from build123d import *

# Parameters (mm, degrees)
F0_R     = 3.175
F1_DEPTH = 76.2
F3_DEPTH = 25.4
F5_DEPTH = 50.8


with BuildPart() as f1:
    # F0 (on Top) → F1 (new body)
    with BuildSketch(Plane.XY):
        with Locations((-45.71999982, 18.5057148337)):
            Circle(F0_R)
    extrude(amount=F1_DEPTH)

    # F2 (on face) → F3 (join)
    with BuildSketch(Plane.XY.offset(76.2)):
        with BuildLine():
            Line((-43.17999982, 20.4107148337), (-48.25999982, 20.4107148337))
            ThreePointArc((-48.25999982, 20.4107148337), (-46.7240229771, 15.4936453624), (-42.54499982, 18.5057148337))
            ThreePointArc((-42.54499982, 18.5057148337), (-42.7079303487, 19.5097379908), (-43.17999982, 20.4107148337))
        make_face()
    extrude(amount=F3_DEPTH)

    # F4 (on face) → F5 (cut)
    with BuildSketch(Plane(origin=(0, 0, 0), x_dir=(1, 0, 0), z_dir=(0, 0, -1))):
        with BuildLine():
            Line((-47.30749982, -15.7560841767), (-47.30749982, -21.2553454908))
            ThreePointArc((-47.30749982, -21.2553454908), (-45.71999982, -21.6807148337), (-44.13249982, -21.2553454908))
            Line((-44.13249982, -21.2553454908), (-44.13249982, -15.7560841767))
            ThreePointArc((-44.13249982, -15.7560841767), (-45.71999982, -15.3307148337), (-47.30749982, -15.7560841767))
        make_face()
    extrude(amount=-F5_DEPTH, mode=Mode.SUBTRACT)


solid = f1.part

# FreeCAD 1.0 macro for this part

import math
import FreeCAD as App
import Part
import Sketcher

V = App.Vector
Q = App.Units.Quantity

doc = App.newDocument("Part")
body = doc.addObject("PartDesign::Body", "Body")

sketch1 = body.newObject("Sketcher::SketchObject", "Sketch")
sketch1.AttachmentSupport = (doc.getObject("XY_Plane"), [""])
sketch1.MapMode = "FlatFace"
sketch1.addGeometry(Part.Circle(V(-45.7, 18.5, 0), V(0, 0, 1), 3.2), False)
sketch1.addConstraint([
    Sketcher.Constraint("Diameter", 0, Q("0.25 in")),
    Sketcher.Constraint("DistanceX", 0, 3, -1, 1, Q("1.8 in")),
    Sketcher.Constraint("DistanceY", -1, 1, 0, 3, Q("18.505715 mm")),
])
pad1 = body.newObject("PartDesign::Pad", "Pad")
pad1.Profile = sketch1
pad1.Length = Q("3 in")

sketch2 = body.newObject("Sketcher::SketchObject", "Sketch001")
sketch2.AttachmentSupport = (doc.getObject("XY_Plane"), [""])
sketch2.MapMode = "FlatFace"
sketch2.AttachmentOffset = App.Placement(V(0, 0, 3 * 25.4), App.Rotation())
sketch2.addGeometry([
    Part.LineSegment(V(-43.2, 20.4, 0), V(-48.3, 20.4, 0)),
    Part.ArcOfCircle(Part.Circle(V(-45.7, 18.5, 0), V(0, 0, 1), 3.2), math.radians(143), math.radians(360)),
    Part.ArcOfCircle(Part.Circle(V(-45.7, 18.5, 0), V(0, 0, 1), 3.2), math.radians(0), math.radians(37)),
], False)
sketch2.addConstraint([
    Sketcher.Constraint("Coincident", 0, 2, 1, 1),
    Sketcher.Constraint("Tangent", 1, 2, 2, 1),
    Sketcher.Constraint("Coincident", 2, 2, 0, 1),
    Sketcher.Constraint("Horizontal", 0),
    Sketcher.Constraint("Equal", 1, 2),
    Sketcher.Constraint("Horizontal", 2, 3, 1, 2),
    Sketcher.Constraint("DistanceX", 0, 2, 0, 1, Q("0.2 in")),
    Sketcher.Constraint("Radius", 1, Q("0.125 in")),
    Sketcher.Constraint("DistanceX", 1, 3, -1, 1, Q("1.8 in")),
    Sketcher.Constraint("DistanceY", -1, 1, 1, 3, Q("18.505715 mm")),
])
pad2 = body.newObject("PartDesign::Pad", "Pad001")
pad2.Profile = sketch2
pad2.Length = Q("1 in")

sketch3 = body.newObject("Sketcher::SketchObject", "Sketch002")
sketch3.AttachmentSupport = (doc.getObject("XY_Plane"), [""])
sketch3.MapMode = "FlatFace"
sketch3.addGeometry([
    Part.LineSegment(V(-47.3, 15.8, 0), V(-47.3, 21.3, 0)),
    Part.ArcOfCircle(Part.Circle(V(-45.7, 18.5, 0), V(0, 0, 1), 3.2), math.radians(60), math.radians(120)),
    Part.LineSegment(V(-44.1, 21.3, 0), V(-44.1, 15.8, 0)),
    Part.ArcOfCircle(Part.Circle(V(-45.7, 18.5, 0), V(0, 0, 1), 3.2), math.radians(-120), math.radians(-60)),
], False)
sketch3.addConstraint([
    Sketcher.Constraint("Coincident", 0, 2, 1, 2),
    Sketcher.Constraint("Coincident", 1, 1, 2, 1),
    Sketcher.Constraint("Coincident", 2, 2, 3, 2),
    Sketcher.Constraint("Coincident", 3, 1, 0, 1),
    Sketcher.Constraint("Vertical", 0),
    Sketcher.Constraint("Vertical", 2),
    Sketcher.Constraint("Coincident", 3, 3, 1, 3),
    Sketcher.Constraint("Equal", 1, 3),
    Sketcher.Constraint("Horizontal", 0, 2, 1, 1),
    Sketcher.Constraint("Radius", 1, Q("0.125 in")),
    Sketcher.Constraint("DistanceX", 1, 3, -1, 1, Q("1.8 in")),
    Sketcher.Constraint("DistanceX", 0, 2, 3, 3, Q("0.0625 in")),
    Sketcher.Constraint("DistanceY", -1, 1, 1, 3, Q("18.505715 mm")),
])
pocket1 = body.newObject("PartDesign::Pocket", "Pocket")
pocket1.Profile = sketch3
pocket1.Length = Q("2 in")
pocket1.Reversed = True

doc.recompute()
